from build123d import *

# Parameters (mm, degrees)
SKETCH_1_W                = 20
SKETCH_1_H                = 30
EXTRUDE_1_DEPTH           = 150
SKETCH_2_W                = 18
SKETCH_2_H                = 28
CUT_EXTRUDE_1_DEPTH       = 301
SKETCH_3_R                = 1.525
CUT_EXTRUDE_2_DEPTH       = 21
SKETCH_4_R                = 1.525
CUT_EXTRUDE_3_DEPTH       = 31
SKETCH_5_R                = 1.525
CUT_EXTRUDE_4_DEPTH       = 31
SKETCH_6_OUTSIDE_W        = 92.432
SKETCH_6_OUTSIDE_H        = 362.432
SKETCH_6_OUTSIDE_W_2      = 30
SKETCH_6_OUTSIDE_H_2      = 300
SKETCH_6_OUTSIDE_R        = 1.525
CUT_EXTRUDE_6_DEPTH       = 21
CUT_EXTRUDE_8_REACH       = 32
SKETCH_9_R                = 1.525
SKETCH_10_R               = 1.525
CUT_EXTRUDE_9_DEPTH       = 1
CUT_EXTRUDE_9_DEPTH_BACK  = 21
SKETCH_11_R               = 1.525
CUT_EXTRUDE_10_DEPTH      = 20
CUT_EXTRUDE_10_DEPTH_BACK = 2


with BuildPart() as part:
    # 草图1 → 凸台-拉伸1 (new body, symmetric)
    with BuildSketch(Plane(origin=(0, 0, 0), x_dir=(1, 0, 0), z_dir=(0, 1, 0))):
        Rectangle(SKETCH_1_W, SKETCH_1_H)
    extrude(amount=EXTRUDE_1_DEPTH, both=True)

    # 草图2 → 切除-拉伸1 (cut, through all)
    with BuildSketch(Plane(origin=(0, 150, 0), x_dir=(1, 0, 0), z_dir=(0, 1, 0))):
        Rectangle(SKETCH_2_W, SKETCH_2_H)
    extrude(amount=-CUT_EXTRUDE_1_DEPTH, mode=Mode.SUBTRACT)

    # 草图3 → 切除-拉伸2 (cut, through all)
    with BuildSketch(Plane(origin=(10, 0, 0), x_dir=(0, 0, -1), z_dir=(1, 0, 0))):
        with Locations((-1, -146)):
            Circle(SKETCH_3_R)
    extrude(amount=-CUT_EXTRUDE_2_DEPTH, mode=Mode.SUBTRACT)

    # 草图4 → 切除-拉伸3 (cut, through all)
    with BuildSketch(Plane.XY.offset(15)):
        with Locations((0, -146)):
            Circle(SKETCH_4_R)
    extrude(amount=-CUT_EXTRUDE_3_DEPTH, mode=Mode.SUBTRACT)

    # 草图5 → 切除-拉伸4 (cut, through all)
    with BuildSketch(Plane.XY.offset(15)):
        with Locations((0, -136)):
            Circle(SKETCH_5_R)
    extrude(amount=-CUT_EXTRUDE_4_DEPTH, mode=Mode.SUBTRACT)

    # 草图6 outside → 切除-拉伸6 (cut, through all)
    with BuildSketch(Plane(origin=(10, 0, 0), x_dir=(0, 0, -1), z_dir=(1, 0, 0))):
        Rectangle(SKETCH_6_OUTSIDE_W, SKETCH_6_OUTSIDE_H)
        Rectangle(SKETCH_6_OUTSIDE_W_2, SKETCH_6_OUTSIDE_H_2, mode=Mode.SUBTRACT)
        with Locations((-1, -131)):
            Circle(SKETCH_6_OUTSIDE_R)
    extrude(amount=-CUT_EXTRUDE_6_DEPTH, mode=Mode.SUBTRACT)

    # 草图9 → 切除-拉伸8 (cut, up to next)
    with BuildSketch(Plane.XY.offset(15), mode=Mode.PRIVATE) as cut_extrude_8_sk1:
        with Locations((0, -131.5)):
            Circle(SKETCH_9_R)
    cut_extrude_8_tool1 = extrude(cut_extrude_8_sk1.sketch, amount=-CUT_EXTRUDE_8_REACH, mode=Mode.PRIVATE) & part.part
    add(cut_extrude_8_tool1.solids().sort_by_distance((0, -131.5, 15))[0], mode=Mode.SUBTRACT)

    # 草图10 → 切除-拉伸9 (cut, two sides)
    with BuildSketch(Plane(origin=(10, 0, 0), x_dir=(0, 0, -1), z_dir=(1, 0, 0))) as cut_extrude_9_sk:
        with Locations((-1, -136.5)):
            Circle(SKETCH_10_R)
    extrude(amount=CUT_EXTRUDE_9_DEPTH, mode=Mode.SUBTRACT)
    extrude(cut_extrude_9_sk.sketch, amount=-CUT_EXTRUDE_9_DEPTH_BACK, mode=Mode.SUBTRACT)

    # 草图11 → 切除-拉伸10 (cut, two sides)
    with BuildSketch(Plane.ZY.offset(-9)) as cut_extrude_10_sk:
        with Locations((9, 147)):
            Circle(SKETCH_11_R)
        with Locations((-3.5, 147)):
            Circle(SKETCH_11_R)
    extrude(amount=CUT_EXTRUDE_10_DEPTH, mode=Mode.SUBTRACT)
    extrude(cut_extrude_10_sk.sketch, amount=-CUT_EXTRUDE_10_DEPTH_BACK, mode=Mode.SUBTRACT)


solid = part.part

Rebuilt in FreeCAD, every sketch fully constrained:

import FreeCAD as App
import Part
import Sketcher
from FreeCAD import Vector


def add_polygon(sketch, points):
    """Adds a closed chain of lines whose ends are joined by coincident constraints."""
    first, n = sketch.GeometryCount, len(points)
    for a, b in zip(points, points[1:] + points[:1]):
        sketch.addGeometry(Part.LineSegment(App.Vector(*a, 0), App.Vector(*b, 0)), False)
    for i in range(n):
        sketch.addConstraint(Sketcher.Constraint("Coincident", first + i, 2, first + (i + 1) % n, 1))

doc = App.newDocument("Part")
params = doc.addObject("Spreadsheet::Sheet", "Params")
for row, (alias, value) in enumerate([
    ("sketch1_width", "20 mm"),
    ("sketch1_height", "30 mm"),
    ("pad1_length", "300 mm"),
    ("sketch2_width", "18 mm"),
    ("sketch2_height", "28 mm"),
    ("sketch3_diameter", "3.05 mm"),
    ("sketch4_diameter", "3.05 mm"),
    ("sketch5_diameter", "3.05 mm"),
    ("sketch6_diameter", "3.05 mm"),
    ("sketch6_width", "300 mm"),
    ("sketch6_height", "30 mm"),
    ("sketch7_diameter", "3.05 mm"),
    ("sketch8_diameter", "3.05 mm"),
    ("sketch9_diameter", "3.05 mm"),
], start=1):
    params.set(f"A{row}", alias)
    params.set(f"B{row}", "=" + value)
    params.setAlias(f"B{row}", alias)

body = doc.addObject("PartDesign::Body", "Body")

sketch1 = body.newObject("Sketcher::SketchObject", "Sketch")
sketch1.AttachmentSupport = (doc.getObject("XZ_Plane"), [""])
sketch1.MapMode = "FlatFace"
add_polygon(sketch1, [(-10, -15), (-10, 15), (10, 15), (10, -15)])
sketch1.addConstraint(Sketcher.Constraint("Vertical", 0))
sketch1.addConstraint(Sketcher.Constraint("Horizontal", 1))
sketch1.addConstraint(Sketcher.Constraint("Vertical", 2))
sketch1.addConstraint(Sketcher.Constraint("Horizontal", 3))
sketch1.addConstraint(Sketcher.Constraint("Symmetric", 0, 2, 2, 2, -1, 1))
sketch1.addConstraint(Sketcher.Constraint("DistanceX", 1, 1, 1, 2, 20.0))
sketch1.addConstraint(Sketcher.Constraint("DistanceY", 0, 1, 0, 2, 30.0))
sketch1.setExpression("Constraints[9]", "Params.sketch1_width")
sketch1.setExpression("Constraints[10]", "Params.sketch1_height")
pad1 = body.newObject("PartDesign::Pad", "Pad")
pad1.Profile = sketch1
pad1.setExpression("Length", "Params.pad1_length")
pad1.Midplane = True

sketch2 = body.newObject("Sketcher::SketchObject", "Sketch001")
sketch2.AttachmentSupport = (doc.getObject("XZ_Plane"), [""])
sketch2.MapMode = "FlatFace"
sketch2.AttachmentOffset = App.Placement(Vector(0, 0, -150), App.Rotation())
add_polygon(sketch2, [(-9, -14), (-9, 14), (9, 14), (9, -14)])
sketch2.addConstraint(Sketcher.Constraint("Vertical", 0))
sketch2.addConstraint(Sketcher.Constraint("Horizontal", 1))
sketch2.addConstraint(Sketcher.Constraint("Vertical", 2))
sketch2.addConstraint(Sketcher.Constraint("Horizontal", 3))
sketch2.addConstraint(Sketcher.Constraint("Symmetric", 0, 2, 2, 2, -1, 1))
sketch2.addConstraint(Sketcher.Constraint("DistanceX", 1, 1, 1, 2, 18.0))
sketch2.addConstraint(Sketcher.Constraint("DistanceY", 0, 1, 0, 2, 28.0))
sketch2.setExpression("Constraints[9]", "Params.sketch2_width")
sketch2.setExpression("Constraints[10]", "Params.sketch2_height")
pocket1 = body.newObject("PartDesign::Pocket", "Pocket")
pocket1.Profile = sketch2
pocket1.Type = "ThroughAll"
pocket1.Reversed = True

sketch3 = body.newObject("Sketcher::SketchObject", "Sketch002")
sketch3.AttachmentSupport = (doc.getObject("YZ_Plane"), [""])
sketch3.MapMode = "FlatFace"
sketch3.AttachmentOffset = App.Placement(Vector(0, 0, 10), App.Rotation())
sketch3.addGeometry(Part.Circle(Vector(-146, 1, 0), Vector(0, 0, 1), 1.525), False)
sketch3.addConstraint(Sketcher.Constraint("Diameter", 0, 3.05))
sketch3.addConstraint(Sketcher.Constraint("DistanceX", 0, 3, -1, 1, 146.0))
sketch3.addConstraint(Sketcher.Constraint("DistanceY", -1, 1, 0, 3, 1.0))
sketch3.setExpression("Constraints[0]", "Params.sketch3_diameter")
pocket2 = body.newObject("PartDesign::Pocket", "Pocket001")
pocket2.Profile = sketch3
pocket2.Type = "ThroughAll"

sketch4 = body.newObject("Sketcher::SketchObject", "Sketch003")
sketch4.AttachmentSupport = (doc.getObject("XY_Plane"), [""])
sketch4.MapMode = "FlatFace"
sketch4.AttachmentOffset = App.Placement(Vector(0, 0, 15), App.Rotation())
sketch4.addGeometry(Part.Circle(Vector(0, -146, 0), Vector(0, 0, 1), 1.525), False)
sketch4.addConstraint(Sketcher.Constraint("PointOnObject", 0, 3, -2))
sketch4.addConstraint(Sketcher.Constraint("Diameter", 0, 3.05))
sketch4.addConstraint(Sketcher.Constraint("DistanceY", 0, 3, -1, 1, 146.0))
sketch4.setExpression("Constraints[1]", "Params.sketch4_diameter")
pocket3 = body.newObject("PartDesign::Pocket", "Pocket002")
pocket3.Profile = sketch4
pocket3.Type = "ThroughAll"

sketch5 = body.newObject("Sketcher::SketchObject", "Sketch004")
sketch5.AttachmentSupport = (doc.getObject("XY_Plane"), [""])
sketch5.MapMode = "FlatFace"
sketch5.AttachmentOffset = App.Placement(Vector(0, 0, 15), App.Rotation())
sketch5.addGeometry(Part.Circle(Vector(0, -136, 0), Vector(0, 0, 1), 1.525), False)
sketch5.addConstraint(Sketcher.Constraint("PointOnObject", 0, 3, -2))
sketch5.addConstraint(Sketcher.Constraint("Diameter", 0, 3.05))
sketch5.addConstraint(Sketcher.Constraint("DistanceY", 0, 3, -1, 1, 136.0))
sketch5.setExpression("Constraints[1]", "Params.sketch5_diameter")
pocket4 = body.newObject("PartDesign::Pocket", "Pocket003")
pocket4.Profile = sketch5
pocket4.Type = "ThroughAll"

sketch6 = body.newObject("Sketcher::SketchObject", "Sketch005")
sketch6.AttachmentSupport = (doc.getObject("YZ_Plane"), [""])
sketch6.MapMode = "FlatFace"
sketch6.AttachmentOffset = App.Placement(Vector(0, 0, 10), App.Rotation())
add_polygon(sketch6, [(181.216, 46.216), (-181.216, 46.216), (-181.216, -46.216), (181.216, -46.216)])
add_polygon(sketch6, [(-150, -15), (-150, 15), (150, 15), (150, -15)])
sketch6.addGeometry(Part.Circle(Vector(-131, 1, 0), Vector(0, 0, 1), 1.525), False)
sketch6.addConstraint(Sketcher.Constraint("Horizontal", 0))
sketch6.addConstraint(Sketcher.Constraint("Vertical", 1))
sketch6.addConstraint(Sketcher.Constraint("Horizontal", 2))
sketch6.addConstraint(Sketcher.Constraint("Vertical", 3))
sketch6.addConstraint(Sketcher.Constraint("Vertical", 4))
sketch6.addConstraint(Sketcher.Constraint("Horizontal", 5))
sketch6.addConstraint(Sketcher.Constraint("Vertical", 6))
sketch6.addConstraint(Sketcher.Constraint("Horizontal", 7))
sketch6.addConstraint(Sketcher.Constraint("Symmetric", 0, 2, 2, 2, -1, 1))
sketch6.addConstraint(Sketcher.Constraint("Symmetric", 4, 2, 6, 2, -1, 1))
sketch6.addConstraint(Sketcher.Constraint("Diameter", 8, 3.05))
sketch6.addConstraint(Sketcher.Constraint("DistanceX", 5, 1, 5, 2, 300.0))
sketch6.addConstraint(Sketcher.Constraint("DistanceY", 4, 1, 4, 2, 30.0))
sketch6.addConstraint(Sketcher.Constraint("DistanceX", 8, 3, -1, 1, 131.0))
sketch6.addConstraint(Sketcher.Constraint("DistanceY", -1, 1, 8, 3, 1.0))
sketch6.addConstraint(Sketcher.Constraint("DistanceX", 0, 2, 0, 1, 362.432))
sketch6.addConstraint(Sketcher.Constraint("DistanceY", 1, 2, 1, 1, 92.432))
sketch6.setExpression("Constraints[18]", "Params.sketch6_diameter")
sketch6.setExpression("Constraints[19]", "Params.sketch6_width")
sketch6.setExpression("Constraints[20]", "Params.sketch6_height")
pocket5 = body.newObject("PartDesign::Pocket", "Pocket004")
pocket5.Profile = sketch6
pocket5.Type = "ThroughAll"

sketch7 = body.newObject("Sketcher::SketchObject", "Sketch006")
sketch7.AttachmentSupport = (doc.getObject("XY_Plane"), [""])
sketch7.MapMode = "FlatFace"
sketch7.AttachmentOffset = App.Placement(Vector(0, 0, 15), App.Rotation())
sketch7.addGeometry(Part.Circle(Vector(0, -131.5, 0), Vector(0, 0, 1), 1.525), False)
sketch7.addConstraint(Sketcher.Constraint("PointOnObject", 0, 3, -2))
sketch7.addConstraint(Sketcher.Constraint("Diameter", 0, 3.05))
sketch7.addConstraint(Sketcher.Constraint("DistanceY", 0, 3, -1, 1, 131.5))
sketch7.setExpression("Constraints[1]", "Params.sketch7_diameter")
pocket6 = body.newObject("PartDesign::Pocket", "Pocket005")
pocket6.Profile = sketch7
pocket6.Type = "UpToFirst"

sketch8 = body.newObject("Sketcher::SketchObject", "Sketch007")
sketch8.AttachmentSupport = (doc.getObject("YZ_Plane"), [""])
sketch8.MapMode = "FlatFace"
sketch8.AttachmentOffset = App.Placement(Vector(0, 0, 10), App.Rotation())
sketch8.addGeometry(Part.Circle(Vector(-136.5, 1, 0), Vector(0, 0, 1), 1.525), False)
sketch8.addConstraint(Sketcher.Constraint("Diameter", 0, 3.05))
sketch8.addConstraint(Sketcher.Constraint("DistanceY", -1, 1, 0, 3, 1.0))
sketch8.addConstraint(Sketcher.Constraint("DistanceX", 0, 3, -1, 1, 136.5))
sketch8.setExpression("Constraints[0]", "Params.sketch8_diameter")
pocket7 = body.newObject("PartDesign::Pocket", "Pocket006")
pocket7.Profile = sketch8
pocket7.Type = "ThroughAll"
pocket7.Midplane = True

sketch9 = body.newObject("Sketcher::SketchObject", "Sketch008")
sketch9.AttachmentSupport = (doc.getObject("YZ_Plane"), [""])
sketch9.MapMode = "FlatFace"
sketch9.AttachmentOffset = App.Placement(Vector(0, 0, 9), App.Rotation())
sketch9.addGeometry(Part.Circle(Vector(147, 9, 0), Vector(0, 0, 1), 1.525), False)
sketch9.addGeometry(Part.Circle(Vector(147, -3.5, 0), Vector(0, 0, 1), 1.525), False)
sketch9.addConstraint(Sketcher.Constraint("Equal", 0, 1))
sketch9.addConstraint(Sketcher.Constraint("Vertical", 0, 3, 1, 3))
sketch9.addConstraint(Sketcher.Constraint("Diameter", 0, 3.05))
sketch9.addConstraint(Sketcher.Constraint("DistanceX", -1, 1, 0, 3, 147.0))
sketch9.addConstraint(Sketcher.Constraint("DistanceY", -1, 1, 0, 3, 9.0))
sketch9.addConstraint(Sketcher.Constraint("DistanceY", 1, 3, -1, 1, 3.5))
sketch9.setExpression("Constraints[2]", "Params.sketch9_diameter")
pocket8 = body.newObject("PartDesign::Pocket", "Pocket007")
pocket8.Profile = sketch9
pocket8.Type = "ThroughAll"
pocket8.Midplane = True

doc.recompute()
